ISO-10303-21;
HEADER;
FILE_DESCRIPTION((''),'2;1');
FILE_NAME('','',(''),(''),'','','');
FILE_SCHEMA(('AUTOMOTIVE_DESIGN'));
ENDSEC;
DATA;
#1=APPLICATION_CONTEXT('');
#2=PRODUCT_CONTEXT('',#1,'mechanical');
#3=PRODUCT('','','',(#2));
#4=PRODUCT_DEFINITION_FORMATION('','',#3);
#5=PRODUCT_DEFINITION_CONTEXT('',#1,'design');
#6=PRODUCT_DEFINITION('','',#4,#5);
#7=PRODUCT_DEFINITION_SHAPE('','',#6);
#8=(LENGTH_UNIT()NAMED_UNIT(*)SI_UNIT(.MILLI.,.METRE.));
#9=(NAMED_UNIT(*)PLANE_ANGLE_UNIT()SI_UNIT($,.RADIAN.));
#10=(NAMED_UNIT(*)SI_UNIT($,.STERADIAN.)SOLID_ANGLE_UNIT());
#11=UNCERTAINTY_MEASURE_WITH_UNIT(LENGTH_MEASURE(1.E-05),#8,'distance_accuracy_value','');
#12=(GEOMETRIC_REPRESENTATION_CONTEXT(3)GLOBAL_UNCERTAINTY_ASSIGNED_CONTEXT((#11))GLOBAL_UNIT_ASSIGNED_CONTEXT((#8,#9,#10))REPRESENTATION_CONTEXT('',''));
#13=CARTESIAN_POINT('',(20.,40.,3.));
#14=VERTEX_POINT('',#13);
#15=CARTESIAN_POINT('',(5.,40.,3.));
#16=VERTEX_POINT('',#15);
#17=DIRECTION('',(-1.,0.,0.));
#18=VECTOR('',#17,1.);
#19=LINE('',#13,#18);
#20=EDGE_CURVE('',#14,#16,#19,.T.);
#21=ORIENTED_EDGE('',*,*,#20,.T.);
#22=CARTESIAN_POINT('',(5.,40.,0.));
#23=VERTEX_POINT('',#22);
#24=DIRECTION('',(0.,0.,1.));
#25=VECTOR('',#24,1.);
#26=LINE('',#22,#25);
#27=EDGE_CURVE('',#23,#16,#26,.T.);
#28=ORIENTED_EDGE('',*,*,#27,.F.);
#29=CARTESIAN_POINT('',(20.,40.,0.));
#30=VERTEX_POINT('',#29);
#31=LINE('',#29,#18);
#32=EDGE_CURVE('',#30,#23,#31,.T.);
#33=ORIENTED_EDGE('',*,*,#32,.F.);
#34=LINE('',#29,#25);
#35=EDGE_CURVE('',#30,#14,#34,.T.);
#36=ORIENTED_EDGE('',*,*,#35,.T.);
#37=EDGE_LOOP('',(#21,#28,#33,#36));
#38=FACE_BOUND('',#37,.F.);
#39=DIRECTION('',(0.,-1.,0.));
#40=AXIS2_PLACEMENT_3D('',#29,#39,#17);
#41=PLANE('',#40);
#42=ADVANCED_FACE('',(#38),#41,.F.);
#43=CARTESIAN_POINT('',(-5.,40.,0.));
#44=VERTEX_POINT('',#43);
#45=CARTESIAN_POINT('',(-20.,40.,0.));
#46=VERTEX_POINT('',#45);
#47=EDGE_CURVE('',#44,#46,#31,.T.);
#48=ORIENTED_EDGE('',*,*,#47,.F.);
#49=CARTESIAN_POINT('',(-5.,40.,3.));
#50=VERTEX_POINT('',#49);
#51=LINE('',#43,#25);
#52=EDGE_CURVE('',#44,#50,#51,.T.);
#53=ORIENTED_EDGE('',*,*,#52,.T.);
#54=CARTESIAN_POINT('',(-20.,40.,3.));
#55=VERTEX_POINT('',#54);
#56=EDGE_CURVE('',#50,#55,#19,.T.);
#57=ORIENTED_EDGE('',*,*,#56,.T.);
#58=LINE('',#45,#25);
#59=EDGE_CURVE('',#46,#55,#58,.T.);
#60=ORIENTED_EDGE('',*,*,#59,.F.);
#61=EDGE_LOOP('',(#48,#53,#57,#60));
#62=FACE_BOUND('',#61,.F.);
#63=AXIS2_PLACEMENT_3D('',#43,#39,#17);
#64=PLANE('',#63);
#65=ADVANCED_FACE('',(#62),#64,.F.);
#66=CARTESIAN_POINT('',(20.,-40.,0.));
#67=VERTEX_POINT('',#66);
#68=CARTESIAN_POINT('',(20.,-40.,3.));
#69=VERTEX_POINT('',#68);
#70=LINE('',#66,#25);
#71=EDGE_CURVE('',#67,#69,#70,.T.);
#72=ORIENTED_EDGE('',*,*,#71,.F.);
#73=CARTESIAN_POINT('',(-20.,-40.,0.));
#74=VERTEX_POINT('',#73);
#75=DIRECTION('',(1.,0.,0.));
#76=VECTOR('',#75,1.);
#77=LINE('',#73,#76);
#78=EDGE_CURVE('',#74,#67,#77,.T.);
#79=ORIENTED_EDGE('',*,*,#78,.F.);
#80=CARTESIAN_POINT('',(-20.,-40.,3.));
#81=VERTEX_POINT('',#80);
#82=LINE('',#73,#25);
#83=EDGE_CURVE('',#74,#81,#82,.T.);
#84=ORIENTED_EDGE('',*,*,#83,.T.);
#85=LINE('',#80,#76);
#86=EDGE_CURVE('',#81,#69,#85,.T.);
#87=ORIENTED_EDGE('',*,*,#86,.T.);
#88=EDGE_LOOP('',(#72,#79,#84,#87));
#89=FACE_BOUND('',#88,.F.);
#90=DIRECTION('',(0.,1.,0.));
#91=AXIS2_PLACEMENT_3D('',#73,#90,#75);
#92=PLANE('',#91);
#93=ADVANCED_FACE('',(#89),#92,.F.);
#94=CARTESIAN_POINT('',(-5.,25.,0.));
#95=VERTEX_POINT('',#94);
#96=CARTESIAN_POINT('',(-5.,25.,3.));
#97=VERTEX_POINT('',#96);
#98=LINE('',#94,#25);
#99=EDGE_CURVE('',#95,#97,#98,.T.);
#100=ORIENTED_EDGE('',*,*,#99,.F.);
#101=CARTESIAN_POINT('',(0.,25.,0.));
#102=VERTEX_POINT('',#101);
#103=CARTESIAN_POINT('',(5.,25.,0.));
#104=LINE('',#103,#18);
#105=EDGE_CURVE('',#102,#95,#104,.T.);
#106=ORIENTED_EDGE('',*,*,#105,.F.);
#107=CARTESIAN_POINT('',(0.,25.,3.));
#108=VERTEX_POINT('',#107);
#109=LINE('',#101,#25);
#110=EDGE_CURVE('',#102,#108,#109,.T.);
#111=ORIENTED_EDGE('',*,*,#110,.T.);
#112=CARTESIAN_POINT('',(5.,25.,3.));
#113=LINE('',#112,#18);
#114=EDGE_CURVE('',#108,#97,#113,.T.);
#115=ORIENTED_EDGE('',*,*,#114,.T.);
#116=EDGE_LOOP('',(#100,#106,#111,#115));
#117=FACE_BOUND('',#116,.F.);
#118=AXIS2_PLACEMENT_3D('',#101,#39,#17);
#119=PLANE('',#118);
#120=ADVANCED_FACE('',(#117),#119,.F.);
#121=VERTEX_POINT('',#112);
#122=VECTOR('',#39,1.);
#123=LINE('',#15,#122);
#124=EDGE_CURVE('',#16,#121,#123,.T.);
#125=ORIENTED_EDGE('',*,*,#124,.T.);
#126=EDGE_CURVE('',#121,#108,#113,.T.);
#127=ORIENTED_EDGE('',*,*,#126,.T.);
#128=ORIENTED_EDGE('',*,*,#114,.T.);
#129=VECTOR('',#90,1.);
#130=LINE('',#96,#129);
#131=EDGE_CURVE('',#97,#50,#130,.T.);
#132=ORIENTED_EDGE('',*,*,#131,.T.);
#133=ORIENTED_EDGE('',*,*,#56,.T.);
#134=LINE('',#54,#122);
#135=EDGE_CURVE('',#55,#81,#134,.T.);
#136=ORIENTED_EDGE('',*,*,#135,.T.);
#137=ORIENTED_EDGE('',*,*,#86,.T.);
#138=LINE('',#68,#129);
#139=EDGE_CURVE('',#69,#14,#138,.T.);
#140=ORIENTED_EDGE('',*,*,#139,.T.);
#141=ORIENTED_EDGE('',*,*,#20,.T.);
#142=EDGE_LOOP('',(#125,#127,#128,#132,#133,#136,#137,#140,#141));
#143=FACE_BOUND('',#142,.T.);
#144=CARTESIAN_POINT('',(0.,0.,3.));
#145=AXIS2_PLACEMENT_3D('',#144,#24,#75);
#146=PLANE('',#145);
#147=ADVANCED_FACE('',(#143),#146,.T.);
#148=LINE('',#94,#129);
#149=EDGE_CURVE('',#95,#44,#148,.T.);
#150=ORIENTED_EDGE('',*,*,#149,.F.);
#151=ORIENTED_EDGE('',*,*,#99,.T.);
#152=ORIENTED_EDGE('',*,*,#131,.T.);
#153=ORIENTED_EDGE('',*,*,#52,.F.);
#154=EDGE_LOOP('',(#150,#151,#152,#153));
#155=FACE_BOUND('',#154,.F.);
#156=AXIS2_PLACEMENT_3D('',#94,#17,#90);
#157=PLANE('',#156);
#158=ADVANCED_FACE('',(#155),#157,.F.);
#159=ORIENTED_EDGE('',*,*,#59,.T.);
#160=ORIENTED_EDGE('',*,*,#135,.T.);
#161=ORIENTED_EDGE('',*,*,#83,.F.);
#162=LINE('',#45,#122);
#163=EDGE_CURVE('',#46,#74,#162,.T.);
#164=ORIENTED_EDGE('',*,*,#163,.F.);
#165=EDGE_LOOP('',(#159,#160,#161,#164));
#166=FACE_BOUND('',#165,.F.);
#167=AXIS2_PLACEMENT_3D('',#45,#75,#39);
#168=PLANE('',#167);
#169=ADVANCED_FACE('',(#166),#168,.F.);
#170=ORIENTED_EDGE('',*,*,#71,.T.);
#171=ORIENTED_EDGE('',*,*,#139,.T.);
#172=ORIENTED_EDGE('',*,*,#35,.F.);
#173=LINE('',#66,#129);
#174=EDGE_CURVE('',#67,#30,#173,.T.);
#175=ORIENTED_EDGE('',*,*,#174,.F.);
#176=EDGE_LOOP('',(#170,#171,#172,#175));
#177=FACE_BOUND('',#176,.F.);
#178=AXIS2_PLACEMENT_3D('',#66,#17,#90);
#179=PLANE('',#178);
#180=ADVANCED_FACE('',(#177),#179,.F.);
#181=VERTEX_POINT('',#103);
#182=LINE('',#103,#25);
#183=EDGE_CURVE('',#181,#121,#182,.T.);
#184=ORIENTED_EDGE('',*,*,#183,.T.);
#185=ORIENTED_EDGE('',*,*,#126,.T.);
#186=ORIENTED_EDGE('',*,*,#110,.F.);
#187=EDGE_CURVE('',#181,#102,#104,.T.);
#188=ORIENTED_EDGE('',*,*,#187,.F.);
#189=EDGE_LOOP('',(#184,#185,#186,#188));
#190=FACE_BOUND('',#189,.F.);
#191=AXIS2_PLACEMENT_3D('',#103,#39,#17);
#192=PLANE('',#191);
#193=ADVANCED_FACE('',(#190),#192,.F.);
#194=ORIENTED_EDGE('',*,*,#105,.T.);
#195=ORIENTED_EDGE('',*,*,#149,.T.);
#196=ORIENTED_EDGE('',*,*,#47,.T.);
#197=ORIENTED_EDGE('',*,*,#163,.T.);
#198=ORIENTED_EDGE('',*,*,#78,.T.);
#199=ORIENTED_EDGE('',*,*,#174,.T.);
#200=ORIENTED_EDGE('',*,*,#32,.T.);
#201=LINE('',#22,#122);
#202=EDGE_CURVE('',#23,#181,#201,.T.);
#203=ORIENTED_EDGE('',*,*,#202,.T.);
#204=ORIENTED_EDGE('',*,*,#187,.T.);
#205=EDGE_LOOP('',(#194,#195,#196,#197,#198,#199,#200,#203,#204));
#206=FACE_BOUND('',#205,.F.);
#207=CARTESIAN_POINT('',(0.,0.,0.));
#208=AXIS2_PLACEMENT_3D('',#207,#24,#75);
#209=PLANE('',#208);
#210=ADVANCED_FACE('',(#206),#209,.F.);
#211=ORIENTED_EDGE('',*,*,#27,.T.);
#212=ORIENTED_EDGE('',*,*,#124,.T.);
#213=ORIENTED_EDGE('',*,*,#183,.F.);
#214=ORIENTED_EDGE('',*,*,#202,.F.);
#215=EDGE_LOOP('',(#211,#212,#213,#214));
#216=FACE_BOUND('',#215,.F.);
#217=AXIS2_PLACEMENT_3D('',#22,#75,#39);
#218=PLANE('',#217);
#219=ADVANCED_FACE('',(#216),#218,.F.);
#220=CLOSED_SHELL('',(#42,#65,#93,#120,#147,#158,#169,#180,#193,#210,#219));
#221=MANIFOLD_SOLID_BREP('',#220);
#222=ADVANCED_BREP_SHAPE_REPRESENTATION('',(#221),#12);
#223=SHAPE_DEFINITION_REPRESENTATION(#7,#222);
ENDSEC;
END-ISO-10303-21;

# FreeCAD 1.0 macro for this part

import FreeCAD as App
import Part
import Sketcher
Q = App.Units.Quantity


def add_polygon(sketch, points):
    """Adds a closed chain of lines whose ends are joined by coincident constraints."""
    first, n = sketch.GeometryCount, len(points)
    for a, b in zip(points, points[1:] + points[:1]):
        sketch.addGeometry(Part.LineSegment(App.Vector(*a, 0), App.Vector(*b, 0)), False)
    for i in range(n):
        sketch.addConstraint(Sketcher.Constraint("Coincident", first + i, 2, first + (i + 1) % n, 1))

doc = App.newDocument("Part")
params = doc.addObject("Spreadsheet::Sheet", "Params")
for row, (alias, value) in enumerate([
    ("sketch1_width", "40 mm"),
    ("sketch1_width2", "15 mm"),
    ("sketch1_height", "80 mm"),
    ("pad1_length", "3 mm"),
], start=1):
    params.set(f"A{row}", alias)
    params.set(f"B{row}", "=" + value)
    params.setAlias(f"B{row}", alias)

body = doc.addObject("PartDesign::Body", "Body")

# Sketch on XY plane
sketch1 = doc.addObject("Sketcher::SketchObject", "Sketch")
body.addObject(sketch1)
sketch1.AttachmentSupport = (doc.XY_Plane, [""])
sketch1.MapMode = "FlatFace"
add_polygon(sketch1, [(-20, 40), (-20, -40), (20, -40), (20, 40), (5, 40), (5, 25), (-5, 25), (-5, 40)])  # lines 0-7
sketch1.addConstraint([
    Sketcher.Constraint("Vertical", 0),
    Sketcher.Constraint("Horizontal", 1),
    Sketcher.Constraint("Vertical", 2),
    Sketcher.Constraint("Horizontal", 3),
    Sketcher.Constraint("Vertical", 4),
    Sketcher.Constraint("Horizontal", 5),
    Sketcher.Constraint("Vertical", 6),
    Sketcher.Constraint("Horizontal", 7),
    Sketcher.Constraint("Symmetric", 0, 2, 2, 2, -1, 1),
    Sketcher.Constraint("Symmetric", 3, 2, 6, 2, -2),
    Sketcher.Constraint("Equal", 7, 4),
    Sketcher.Constraint("DistanceX", 1, 1, 1, 2, Q("40 mm")),
    Sketcher.Constraint("DistanceX", 3, 2, 3, 1, Q("15 mm")),
    Sketcher.Constraint("DistanceY", 0, 2, 0, 1, Q("80 mm")),
])
sketch1.setExpression("Constraints[19]", "Params.sketch1_width")
sketch1.setExpression("Constraints[20]", "Params.sketch1_width2")
sketch1.setExpression("Constraints[21]", "Params.sketch1_height")
pad1 = doc.addObject("PartDesign::Pad", "Pad")
body.addObject(pad1)
pad1.Profile = sketch1
pad1.setExpression("Length", "Params.pad1_length")

doc.recompute()
